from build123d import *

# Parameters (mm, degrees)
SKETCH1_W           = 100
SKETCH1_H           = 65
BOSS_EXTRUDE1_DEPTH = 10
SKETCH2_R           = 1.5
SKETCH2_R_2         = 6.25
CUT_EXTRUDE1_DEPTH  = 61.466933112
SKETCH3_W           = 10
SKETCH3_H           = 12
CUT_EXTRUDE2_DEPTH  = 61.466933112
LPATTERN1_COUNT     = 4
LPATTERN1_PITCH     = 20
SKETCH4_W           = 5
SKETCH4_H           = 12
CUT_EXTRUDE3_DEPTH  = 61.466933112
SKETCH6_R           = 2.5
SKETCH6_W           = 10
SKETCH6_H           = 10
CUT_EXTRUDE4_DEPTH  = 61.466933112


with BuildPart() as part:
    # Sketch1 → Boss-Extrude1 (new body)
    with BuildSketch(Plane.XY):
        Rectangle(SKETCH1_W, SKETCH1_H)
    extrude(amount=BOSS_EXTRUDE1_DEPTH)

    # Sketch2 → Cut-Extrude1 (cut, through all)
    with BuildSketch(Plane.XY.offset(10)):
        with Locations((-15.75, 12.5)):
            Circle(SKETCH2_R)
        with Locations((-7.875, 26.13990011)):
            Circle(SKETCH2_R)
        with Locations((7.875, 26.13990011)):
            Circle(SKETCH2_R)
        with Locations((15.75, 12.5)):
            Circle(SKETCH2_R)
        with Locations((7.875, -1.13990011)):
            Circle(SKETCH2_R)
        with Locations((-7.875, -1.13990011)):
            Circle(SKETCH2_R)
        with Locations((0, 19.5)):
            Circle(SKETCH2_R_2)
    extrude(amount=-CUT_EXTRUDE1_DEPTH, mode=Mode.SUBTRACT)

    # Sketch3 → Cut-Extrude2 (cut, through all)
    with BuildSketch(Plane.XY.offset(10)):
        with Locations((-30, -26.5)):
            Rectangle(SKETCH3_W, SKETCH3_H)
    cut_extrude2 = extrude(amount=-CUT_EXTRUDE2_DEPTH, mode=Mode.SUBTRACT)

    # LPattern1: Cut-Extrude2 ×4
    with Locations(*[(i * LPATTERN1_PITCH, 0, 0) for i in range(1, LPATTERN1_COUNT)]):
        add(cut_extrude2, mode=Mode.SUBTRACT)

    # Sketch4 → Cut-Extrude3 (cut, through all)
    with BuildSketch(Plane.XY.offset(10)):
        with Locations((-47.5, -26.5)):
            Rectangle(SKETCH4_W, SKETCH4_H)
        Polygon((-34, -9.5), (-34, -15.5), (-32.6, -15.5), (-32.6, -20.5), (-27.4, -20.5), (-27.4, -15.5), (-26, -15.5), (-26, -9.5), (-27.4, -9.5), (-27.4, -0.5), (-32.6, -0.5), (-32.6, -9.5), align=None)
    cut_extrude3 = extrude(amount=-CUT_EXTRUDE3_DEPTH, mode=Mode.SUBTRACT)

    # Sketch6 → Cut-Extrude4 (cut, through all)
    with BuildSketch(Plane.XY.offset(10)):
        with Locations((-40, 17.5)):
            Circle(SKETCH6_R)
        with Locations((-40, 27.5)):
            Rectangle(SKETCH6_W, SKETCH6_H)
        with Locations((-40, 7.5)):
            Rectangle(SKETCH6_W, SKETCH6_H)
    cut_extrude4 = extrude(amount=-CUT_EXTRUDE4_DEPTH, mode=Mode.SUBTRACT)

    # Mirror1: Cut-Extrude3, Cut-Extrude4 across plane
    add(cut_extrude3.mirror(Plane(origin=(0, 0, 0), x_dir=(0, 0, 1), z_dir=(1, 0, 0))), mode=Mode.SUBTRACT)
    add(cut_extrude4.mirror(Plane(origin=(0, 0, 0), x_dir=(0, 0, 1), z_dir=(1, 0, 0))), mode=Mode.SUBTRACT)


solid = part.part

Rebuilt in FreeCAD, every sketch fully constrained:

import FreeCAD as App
import Part
import Sketcher

V = App.Vector

doc = App.newDocument("Part")
body = doc.addObject("PartDesign::Body", "Body")

# Sketch on XY plane
sketch1 = doc.addObject("Sketcher::SketchObject", "Sketch")
body.addObject(sketch1)
sketch1.AttachmentSupport = (doc.XY_Plane, [""])
sketch1.MapMode = "FlatFace"
sketch1.addGeometry(Part.LineSegment(V(-50, 32.5, 0), V(-50, -32.5, 0)), False)
sketch1.addGeometry(Part.LineSegment(V(-50, -32.5, 0), V(50, -32.5, 0)), False)
sketch1.addGeometry(Part.LineSegment(V(50, -32.5, 0), V(50, 32.5, 0)), False)
sketch1.addGeometry(Part.LineSegment(V(50, 32.5, 0), V(-50, 32.5, 0)), False)
sketch1.addConstraint(Sketcher.Constraint("Coincident", 0, 2, 1, 1))
sketch1.addConstraint(Sketcher.Constraint("Coincident", 1, 2, 2, 1))
sketch1.addConstraint(Sketcher.Constraint("Coincident", 2, 2, 3, 1))
sketch1.addConstraint(Sketcher.Constraint("Coincident", 3, 2, 0, 1))
sketch1.addConstraint(Sketcher.Constraint("Vertical", 0))
sketch1.addConstraint(Sketcher.Constraint("Horizontal", 1))
sketch1.addConstraint(Sketcher.Constraint("Vertical", 2))
sketch1.addConstraint(Sketcher.Constraint("Horizontal", 3))
sketch1.addConstraint(Sketcher.Constraint("Symmetric", 0, 2, 2, 2, -1, 1))
sketch1.addConstraint(Sketcher.Constraint("DistanceX", 1, 1, 1, 2, 100.0))
sketch1.addConstraint(Sketcher.Constraint("DistanceY", 0, 2, 0, 1, 65.0))
pad1 = doc.addObject("PartDesign::Pad", "Pad")
body.addObject(pad1)
pad1.Profile = sketch1
pad1.Length = 10

# Sketch on XY plane
sketch2 = doc.addObject("Sketcher::SketchObject", "Sketch001")
body.addObject(sketch2)
sketch2.AttachmentSupport = (doc.XY_Plane, [""])
sketch2.MapMode = "FlatFace"
sketch2.AttachmentOffset = App.Placement(V(0, 0, 10), App.Rotation())
sketch2.addGeometry(Part.Circle(V(-15.75, 12.5, 0), V(0, 0, 1), 1.5), False)
sketch2.addGeometry(Part.Circle(V(-7.875, 26.1399, 0), V(0, 0, 1), 1.5), False)
sketch2.addGeometry(Part.Circle(V(7.875, 26.1399, 0), V(0, 0, 1), 1.5), False)
sketch2.addGeometry(Part.Circle(V(15.75, 12.5, 0), V(0, 0, 1), 1.5), False)
sketch2.addGeometry(Part.Circle(V(7.875, -1.1399, 0), V(0, 0, 1), 1.5), False)
sketch2.addGeometry(Part.Circle(V(-7.875, -1.1399, 0), V(0, 0, 1), 1.5), False)
sketch2.addGeometry(Part.Circle(V(0, 19.5, 0), V(0, 0, 1), 6.25), False)
sketch2.addConstraint(Sketcher.Constraint("Equal", 0, 1))
sketch2.addConstraint(Sketcher.Constraint("Equal", 1, 2))
sketch2.addConstraint(Sketcher.Constraint("Equal", 2, 3))
sketch2.addConstraint(Sketcher.Constraint("Equal", 3, 4))
sketch2.addConstraint(Sketcher.Constraint("Equal", 4, 5))
sketch2.addConstraint(Sketcher.Constraint("Symmetric", 1, 3, 2, 3, -2))
sketch2.addConstraint(Sketcher.Constraint("Symmetric", 0, 3, 3, 3, -2))
sketch2.addConstraint(Sketcher.Constraint("Symmetric", 4, 3, 5, 3, -2))
sketch2.addConstraint(Sketcher.Constraint("PointOnObject", 6, 3, -2))
sketch2.addConstraint(Sketcher.Constraint("Vertical", 2, 3, 4, 3))
sketch2.addConstraint(Sketcher.Constraint("Diameter", 0, 3.0))
sketch2.addConstraint(Sketcher.Constraint("Diameter", 6, 12.5))
sketch2.addConstraint(Sketcher.Constraint("DistanceY", 0, 3, 6, 3, 7.0))
sketch2.addConstraint(Sketcher.Constraint("DistanceY", -1, 1, 0, 3, 12.5))
sketch2.addConstraint(Sketcher.Constraint("DistanceX", 0, 3, 3, 3, 31.5))
sketch2.addConstraint(Sketcher.Constraint("DistanceX", 1, 3, 2, 3, 15.75))
sketch2.addConstraint(Sketcher.Constraint("DistanceY", -1, 1, 1, 3, 26.1399))
sketch2.addConstraint(Sketcher.Constraint("DistanceY", 4, 3, -1, 1, 1.1399))
pocket1 = doc.addObject("PartDesign::Pocket", "Pocket")
body.addObject(pocket1)
pocket1.Profile = sketch2
pocket1.Type = "ThroughAll"

# Sketch on XY plane
sketch3 = doc.addObject("Sketcher::SketchObject", "Sketch002")
body.addObject(sketch3)
sketch3.AttachmentSupport = (doc.XY_Plane, [""])
sketch3.MapMode = "FlatFace"
sketch3.AttachmentOffset = App.Placement(V(0, 0, 10), App.Rotation())
sketch3.addGeometry(Part.LineSegment(V(-35, -20.5, 0), V(-35, -32.5, 0)), False)
sketch3.addGeometry(Part.LineSegment(V(-35, -32.5, 0), V(-25, -32.5, 0)), False)
sketch3.addGeometry(Part.LineSegment(V(-25, -32.5, 0), V(-25, -20.5, 0)), False)
sketch3.addGeometry(Part.LineSegment(V(-25, -20.5, 0), V(-35, -20.5, 0)), False)
sketch3.addConstraint(Sketcher.Constraint("Coincident", 0, 2, 1, 1))
sketch3.addConstraint(Sketcher.Constraint("Coincident", 1, 2, 2, 1))
sketch3.addConstraint(Sketcher.Constraint("Coincident", 2, 2, 3, 1))
sketch3.addConstraint(Sketcher.Constraint("Coincident", 3, 2, 0, 1))
sketch3.addConstraint(Sketcher.Constraint("Vertical", 0))
sketch3.addConstraint(Sketcher.Constraint("Horizontal", 1))
sketch3.addConstraint(Sketcher.Constraint("Vertical", 2))
sketch3.addConstraint(Sketcher.Constraint("Horizontal", 3))
sketch3.addConstraint(Sketcher.Constraint("DistanceX", 1, 1, 1, 2, 10.0))
sketch3.addConstraint(Sketcher.Constraint("DistanceY", 0, 2, 0, 1, 12.0))
sketch3.addConstraint(Sketcher.Constraint("DistanceX", 0, 2, -1, 1, 35.0))
sketch3.addConstraint(Sketcher.Constraint("DistanceY", 0, 2, -1, 1, 32.5))
pocket2 = doc.addObject("PartDesign::Pocket", "Pocket001")
body.addObject(pocket2)
pocket2.Profile = sketch3
pocket2.Type = "ThroughAll"
doc.recompute()

linearpattern = doc.addObject("PartDesign::LinearPattern", "LinearPattern")
body.addObject(linearpattern)
linearpattern.Originals = [pocket2]
linearpattern.Direction = (doc.X_Axis, [""])
linearpattern.Mode = "offset"
linearpattern.Offset = 20
linearpattern.Occurrences = 4
body.Tip = linearpattern

# Sketch on XY plane
sketch4 = doc.addObject("Sketcher::SketchObject", "Sketch003")
body.addObject(sketch4)
sketch4.AttachmentSupport = (doc.XY_Plane, [""])
sketch4.MapMode = "FlatFace"
sketch4.AttachmentOffset = App.Placement(V(0, 0, 10), App.Rotation())
sketch4.addGeometry(Part.LineSegment(V(-50, -20.5, 0), V(-50, -32.5, 0)), False)
sketch4.addGeometry(Part.LineSegment(V(-50, -32.5, 0), V(-45, -32.5, 0)), False)
sketch4.addGeometry(Part.LineSegment(V(-45, -32.5, 0), V(-45, -20.5, 0)), False)
sketch4.addGeometry(Part.LineSegment(V(-45, -20.5, 0), V(-50, -20.5, 0)), False)
sketch4.addGeometry(Part.LineSegment(V(-34, -9.5, 0), V(-34, -15.5, 0)), False)
sketch4.addGeometry(Part.LineSegment(V(-34, -15.5, 0), V(-32.6, -15.5, 0)), False)
sketch4.addGeometry(Part.LineSegment(V(-32.6, -15.5, 0), V(-32.6, -20.5, 0)), False)
sketch4.addGeometry(Part.LineSegment(V(-32.6, -20.5, 0), V(-27.4, -20.5, 0)), False)
sketch4.addGeometry(Part.LineSegment(V(-27.4, -20.5, 0), V(-27.4, -15.5, 0)), False)
sketch4.addGeometry(Part.LineSegment(V(-27.4, -15.5, 0), V(-26, -15.5, 0)), False)
sketch4.addGeometry(Part.LineSegment(V(-26, -15.5, 0), V(-26, -9.5, 0)), False)
sketch4.addGeometry(Part.LineSegment(V(-26, -9.5, 0), V(-27.4, -9.5, 0)), False)
sketch4.addGeometry(Part.LineSegment(V(-27.4, -9.5, 0), V(-27.4, -0.5, 0)), False)
sketch4.addGeometry(Part.LineSegment(V(-27.4, -0.5, 0), V(-32.6, -0.5, 0)), False)
sketch4.addGeometry(Part.LineSegment(V(-32.6, -0.5, 0), V(-32.6, -9.5, 0)), False)
sketch4.addGeometry(Part.LineSegment(V(-32.6, -9.5, 0), V(-34, -9.5, 0)), False)
sketch4.addConstraint(Sketcher.Constraint("Coincident", 0, 2, 1, 1))
sketch4.addConstraint(Sketcher.Constraint("Coincident", 1, 2, 2, 1))
sketch4.addConstraint(Sketcher.Constraint("Coincident", 2, 2, 3, 1))
sketch4.addConstraint(Sketcher.Constraint("Coincident", 3, 2, 0, 1))
sketch4.addConstraint(Sketcher.Constraint("Coincident", 4, 2, 5, 1))
sketch4.addConstraint(Sketcher.Constraint("Coincident", 5, 2, 6, 1))
sketch4.addConstraint(Sketcher.Constraint("Coincident", 6, 2, 7, 1))
sketch4.addConstraint(Sketcher.Constraint("Coincident", 7, 2, 8, 1))
sketch4.addConstraint(Sketcher.Constraint("Coincident", 8, 2, 9, 1))
sketch4.addConstraint(Sketcher.Constraint("Coincident", 9, 2, 10, 1))
sketch4.addConstraint(Sketcher.Constraint("Coincident", 10, 2, 11, 1))
sketch4.addConstraint(Sketcher.Constraint("Coincident", 11, 2, 12, 1))
sketch4.addConstraint(Sketcher.Constraint("Coincident", 12, 2, 13, 1))
sketch4.addConstraint(Sketcher.Constraint("Coincident", 13, 2, 14, 1))
sketch4.addConstraint(Sketcher.Constraint("Coincident", 14, 2, 15, 1))
sketch4.addConstraint(Sketcher.Constraint("Coincident", 15, 2, 4, 1))
sketch4.addConstraint(Sketcher.Constraint("Vertical", 0))
sketch4.addConstraint(Sketcher.Constraint("Horizontal", 1))
sketch4.addConstraint(Sketcher.Constraint("Vertical", 2))
sketch4.addConstraint(Sketcher.Constraint("Horizontal", 3))
sketch4.addConstraint(Sketcher.Constraint("Vertical", 4))
sketch4.addConstraint(Sketcher.Constraint("Horizontal", 5))
sketch4.addConstraint(Sketcher.Constraint("Vertical", 6))
sketch4.addConstraint(Sketcher.Constraint("Horizontal", 7))
sketch4.addConstraint(Sketcher.Constraint("Vertical", 8))
sketch4.addConstraint(Sketcher.Constraint("Horizontal", 9))
sketch4.addConstraint(Sketcher.Constraint("Vertical", 10))
sketch4.addConstraint(Sketcher.Constraint("Horizontal", 11))
sketch4.addConstraint(Sketcher.Constraint("Vertical", 12))
sketch4.addConstraint(Sketcher.Constraint("Horizontal", 13))
sketch4.addConstraint(Sketcher.Constraint("Vertical", 14))
sketch4.addConstraint(Sketcher.Constraint("Horizontal", 15))
sketch4.addConstraint(Sketcher.Constraint("Horizontal", 3, 2, 6, 2))
sketch4.addConstraint(Sketcher.Constraint("Horizontal", 5, 2, 8, 2))
sketch4.addConstraint(Sketcher.Constraint("Horizontal", 11, 2, 14, 2))
sketch4.addConstraint(Sketcher.Constraint("Vertical", 8, 2, 11, 2))
sketch4.addConstraint(Sketcher.Constraint("Vertical", 6, 2, 13, 2))
sketch4.addConstraint(Sketcher.Constraint("Equal", 5, 9))
sketch4.addConstraint(Sketcher.Constraint("Equal", 3, 6))
sketch4.addConstraint(Sketcher.Constraint("DistanceX", 1, 1, 1, 2, 5.0))
sketch4.addConstraint(Sketcher.Constraint("DistanceY", 0, 2, 0, 1, 12.0))
sketch4.addConstraint(Sketcher.Constraint("DistanceY", 4, 2, 4, 1, 6.0))
sketch4.addConstraint(Sketcher.Constraint("DistanceY", 12, 1, 12, 2, 9.0))
sketch4.addConstraint(Sketcher.Constraint("DistanceX", 5, 1, 5, 2, 1.4))
sketch4.addConstraint(Sketcher.Constraint("DistanceX", 7, 1, 7, 2, 5.2))
sketch4.addConstraint(Sketcher.Constraint("DistanceX", 0, 2, -1, 1, 50.0))
sketch4.addConstraint(Sketcher.Constraint("DistanceX", 4, 2, -1, 1, 34.0))
sketch4.addConstraint(Sketcher.Constraint("DistanceY", 0, 2, -1, 1, 32.5))
pocket3 = doc.addObject("PartDesign::Pocket", "Pocket002")
body.addObject(pocket3)
pocket3.Profile = sketch4
pocket3.Type = "ThroughAll"

# Sketch on XY plane
sketch5 = doc.addObject("Sketcher::SketchObject", "Sketch004")
body.addObject(sketch5)
sketch5.AttachmentSupport = (doc.XY_Plane, [""])
sketch5.MapMode = "FlatFace"
sketch5.AttachmentOffset = App.Placement(V(0, 0, 10), App.Rotation())
sketch5.addGeometry(Part.Circle(V(-40, 17.5, 0), V(0, 0, 1), 2.5), False)
sketch5.addGeometry(Part.LineSegment(V(-45, 32.5, 0), V(-45, 22.5, 0)), False)
sketch5.addGeometry(Part.LineSegment(V(-45, 22.5, 0), V(-35, 22.5, 0)), False)
sketch5.addGeometry(Part.LineSegment(V(-35, 22.5, 0), V(-35, 32.5, 0)), False)
sketch5.addGeometry(Part.LineSegment(V(-35, 32.5, 0), V(-45, 32.5, 0)), False)
sketch5.addGeometry(Part.LineSegment(V(-45, 12.5, 0), V(-45, 2.5, 0)), False)
sketch5.addGeometry(Part.LineSegment(V(-45, 2.5, 0), V(-35, 2.5, 0)), False)
sketch5.addGeometry(Part.LineSegment(V(-35, 2.5, 0), V(-35, 12.5, 0)), False)
sketch5.addGeometry(Part.LineSegment(V(-35, 12.5, 0), V(-45, 12.5, 0)), False)
sketch5.addConstraint(Sketcher.Constraint("Coincident", 1, 2, 2, 1))
sketch5.addConstraint(Sketcher.Constraint("Coincident", 2, 2, 3, 1))
sketch5.addConstraint(Sketcher.Constraint("Coincident", 3, 2, 4, 1))
sketch5.addConstraint(Sketcher.Constraint("Coincident", 4, 2, 1, 1))
sketch5.addConstraint(Sketcher.Constraint("Coincident", 5, 2, 6, 1))
sketch5.addConstraint(Sketcher.Constraint("Coincident", 6, 2, 7, 1))
sketch5.addConstraint(Sketcher.Constraint("Coincident", 7, 2, 8, 1))
sketch5.addConstraint(Sketcher.Constraint("Coincident", 8, 2, 5, 1))
sketch5.addConstraint(Sketcher.Constraint("Vertical", 1))
sketch5.addConstraint(Sketcher.Constraint("Horizontal", 2))
sketch5.addConstraint(Sketcher.Constraint("Vertical", 3))
sketch5.addConstraint(Sketcher.Constraint("Horizontal", 4))
sketch5.addConstraint(Sketcher.Constraint("Vertical", 5))
sketch5.addConstraint(Sketcher.Constraint("Horizontal", 6))
sketch5.addConstraint(Sketcher.Constraint("Vertical", 7))
sketch5.addConstraint(Sketcher.Constraint("Horizontal", 8))
sketch5.addConstraint(Sketcher.Constraint("Vertical", 4, 2, 5, 2))
sketch5.addConstraint(Sketcher.Constraint("Vertical", 3, 2, 6, 2))
sketch5.addConstraint(Sketcher.Constraint("Equal", 8, 1))
sketch5.addConstraint(Sketcher.Constraint("Equal", 3, 5))
sketch5.addConstraint(Sketcher.Constraint("Diameter", 0, 5.0))
sketch5.addConstraint(Sketcher.Constraint("DistanceX", 2, 1, 2, 2, 10.0))
sketch5.addConstraint(Sketcher.Constraint("DistanceX", 0, 3, -1, 1, 40.0))
sketch5.addConstraint(Sketcher.Constraint("DistanceX", 1, 2, -1, 1, 45.0))
sketch5.addConstraint(Sketcher.Constraint("DistanceY", 0, 3, 1, 2, 5.0))
sketch5.addConstraint(Sketcher.Constraint("DistanceY", 5, 2, 0, 3, 15.0))
sketch5.addConstraint(Sketcher.Constraint("DistanceY", -1, 1, 0, 3, 17.5))
pocket4 = doc.addObject("PartDesign::Pocket", "Pocket003")
body.addObject(pocket4)
pocket4.Profile = sketch5
pocket4.Type = "ThroughAll"
doc.recompute()

mirrored = doc.addObject("PartDesign::Mirrored", "Mirrored")
body.addObject(mirrored)
mirrored.Originals = [pocket3, pocket4]
mirrored.MirrorPlane = (doc.YZ_Plane, [""])
body.Tip = mirrored

doc.recompute()
